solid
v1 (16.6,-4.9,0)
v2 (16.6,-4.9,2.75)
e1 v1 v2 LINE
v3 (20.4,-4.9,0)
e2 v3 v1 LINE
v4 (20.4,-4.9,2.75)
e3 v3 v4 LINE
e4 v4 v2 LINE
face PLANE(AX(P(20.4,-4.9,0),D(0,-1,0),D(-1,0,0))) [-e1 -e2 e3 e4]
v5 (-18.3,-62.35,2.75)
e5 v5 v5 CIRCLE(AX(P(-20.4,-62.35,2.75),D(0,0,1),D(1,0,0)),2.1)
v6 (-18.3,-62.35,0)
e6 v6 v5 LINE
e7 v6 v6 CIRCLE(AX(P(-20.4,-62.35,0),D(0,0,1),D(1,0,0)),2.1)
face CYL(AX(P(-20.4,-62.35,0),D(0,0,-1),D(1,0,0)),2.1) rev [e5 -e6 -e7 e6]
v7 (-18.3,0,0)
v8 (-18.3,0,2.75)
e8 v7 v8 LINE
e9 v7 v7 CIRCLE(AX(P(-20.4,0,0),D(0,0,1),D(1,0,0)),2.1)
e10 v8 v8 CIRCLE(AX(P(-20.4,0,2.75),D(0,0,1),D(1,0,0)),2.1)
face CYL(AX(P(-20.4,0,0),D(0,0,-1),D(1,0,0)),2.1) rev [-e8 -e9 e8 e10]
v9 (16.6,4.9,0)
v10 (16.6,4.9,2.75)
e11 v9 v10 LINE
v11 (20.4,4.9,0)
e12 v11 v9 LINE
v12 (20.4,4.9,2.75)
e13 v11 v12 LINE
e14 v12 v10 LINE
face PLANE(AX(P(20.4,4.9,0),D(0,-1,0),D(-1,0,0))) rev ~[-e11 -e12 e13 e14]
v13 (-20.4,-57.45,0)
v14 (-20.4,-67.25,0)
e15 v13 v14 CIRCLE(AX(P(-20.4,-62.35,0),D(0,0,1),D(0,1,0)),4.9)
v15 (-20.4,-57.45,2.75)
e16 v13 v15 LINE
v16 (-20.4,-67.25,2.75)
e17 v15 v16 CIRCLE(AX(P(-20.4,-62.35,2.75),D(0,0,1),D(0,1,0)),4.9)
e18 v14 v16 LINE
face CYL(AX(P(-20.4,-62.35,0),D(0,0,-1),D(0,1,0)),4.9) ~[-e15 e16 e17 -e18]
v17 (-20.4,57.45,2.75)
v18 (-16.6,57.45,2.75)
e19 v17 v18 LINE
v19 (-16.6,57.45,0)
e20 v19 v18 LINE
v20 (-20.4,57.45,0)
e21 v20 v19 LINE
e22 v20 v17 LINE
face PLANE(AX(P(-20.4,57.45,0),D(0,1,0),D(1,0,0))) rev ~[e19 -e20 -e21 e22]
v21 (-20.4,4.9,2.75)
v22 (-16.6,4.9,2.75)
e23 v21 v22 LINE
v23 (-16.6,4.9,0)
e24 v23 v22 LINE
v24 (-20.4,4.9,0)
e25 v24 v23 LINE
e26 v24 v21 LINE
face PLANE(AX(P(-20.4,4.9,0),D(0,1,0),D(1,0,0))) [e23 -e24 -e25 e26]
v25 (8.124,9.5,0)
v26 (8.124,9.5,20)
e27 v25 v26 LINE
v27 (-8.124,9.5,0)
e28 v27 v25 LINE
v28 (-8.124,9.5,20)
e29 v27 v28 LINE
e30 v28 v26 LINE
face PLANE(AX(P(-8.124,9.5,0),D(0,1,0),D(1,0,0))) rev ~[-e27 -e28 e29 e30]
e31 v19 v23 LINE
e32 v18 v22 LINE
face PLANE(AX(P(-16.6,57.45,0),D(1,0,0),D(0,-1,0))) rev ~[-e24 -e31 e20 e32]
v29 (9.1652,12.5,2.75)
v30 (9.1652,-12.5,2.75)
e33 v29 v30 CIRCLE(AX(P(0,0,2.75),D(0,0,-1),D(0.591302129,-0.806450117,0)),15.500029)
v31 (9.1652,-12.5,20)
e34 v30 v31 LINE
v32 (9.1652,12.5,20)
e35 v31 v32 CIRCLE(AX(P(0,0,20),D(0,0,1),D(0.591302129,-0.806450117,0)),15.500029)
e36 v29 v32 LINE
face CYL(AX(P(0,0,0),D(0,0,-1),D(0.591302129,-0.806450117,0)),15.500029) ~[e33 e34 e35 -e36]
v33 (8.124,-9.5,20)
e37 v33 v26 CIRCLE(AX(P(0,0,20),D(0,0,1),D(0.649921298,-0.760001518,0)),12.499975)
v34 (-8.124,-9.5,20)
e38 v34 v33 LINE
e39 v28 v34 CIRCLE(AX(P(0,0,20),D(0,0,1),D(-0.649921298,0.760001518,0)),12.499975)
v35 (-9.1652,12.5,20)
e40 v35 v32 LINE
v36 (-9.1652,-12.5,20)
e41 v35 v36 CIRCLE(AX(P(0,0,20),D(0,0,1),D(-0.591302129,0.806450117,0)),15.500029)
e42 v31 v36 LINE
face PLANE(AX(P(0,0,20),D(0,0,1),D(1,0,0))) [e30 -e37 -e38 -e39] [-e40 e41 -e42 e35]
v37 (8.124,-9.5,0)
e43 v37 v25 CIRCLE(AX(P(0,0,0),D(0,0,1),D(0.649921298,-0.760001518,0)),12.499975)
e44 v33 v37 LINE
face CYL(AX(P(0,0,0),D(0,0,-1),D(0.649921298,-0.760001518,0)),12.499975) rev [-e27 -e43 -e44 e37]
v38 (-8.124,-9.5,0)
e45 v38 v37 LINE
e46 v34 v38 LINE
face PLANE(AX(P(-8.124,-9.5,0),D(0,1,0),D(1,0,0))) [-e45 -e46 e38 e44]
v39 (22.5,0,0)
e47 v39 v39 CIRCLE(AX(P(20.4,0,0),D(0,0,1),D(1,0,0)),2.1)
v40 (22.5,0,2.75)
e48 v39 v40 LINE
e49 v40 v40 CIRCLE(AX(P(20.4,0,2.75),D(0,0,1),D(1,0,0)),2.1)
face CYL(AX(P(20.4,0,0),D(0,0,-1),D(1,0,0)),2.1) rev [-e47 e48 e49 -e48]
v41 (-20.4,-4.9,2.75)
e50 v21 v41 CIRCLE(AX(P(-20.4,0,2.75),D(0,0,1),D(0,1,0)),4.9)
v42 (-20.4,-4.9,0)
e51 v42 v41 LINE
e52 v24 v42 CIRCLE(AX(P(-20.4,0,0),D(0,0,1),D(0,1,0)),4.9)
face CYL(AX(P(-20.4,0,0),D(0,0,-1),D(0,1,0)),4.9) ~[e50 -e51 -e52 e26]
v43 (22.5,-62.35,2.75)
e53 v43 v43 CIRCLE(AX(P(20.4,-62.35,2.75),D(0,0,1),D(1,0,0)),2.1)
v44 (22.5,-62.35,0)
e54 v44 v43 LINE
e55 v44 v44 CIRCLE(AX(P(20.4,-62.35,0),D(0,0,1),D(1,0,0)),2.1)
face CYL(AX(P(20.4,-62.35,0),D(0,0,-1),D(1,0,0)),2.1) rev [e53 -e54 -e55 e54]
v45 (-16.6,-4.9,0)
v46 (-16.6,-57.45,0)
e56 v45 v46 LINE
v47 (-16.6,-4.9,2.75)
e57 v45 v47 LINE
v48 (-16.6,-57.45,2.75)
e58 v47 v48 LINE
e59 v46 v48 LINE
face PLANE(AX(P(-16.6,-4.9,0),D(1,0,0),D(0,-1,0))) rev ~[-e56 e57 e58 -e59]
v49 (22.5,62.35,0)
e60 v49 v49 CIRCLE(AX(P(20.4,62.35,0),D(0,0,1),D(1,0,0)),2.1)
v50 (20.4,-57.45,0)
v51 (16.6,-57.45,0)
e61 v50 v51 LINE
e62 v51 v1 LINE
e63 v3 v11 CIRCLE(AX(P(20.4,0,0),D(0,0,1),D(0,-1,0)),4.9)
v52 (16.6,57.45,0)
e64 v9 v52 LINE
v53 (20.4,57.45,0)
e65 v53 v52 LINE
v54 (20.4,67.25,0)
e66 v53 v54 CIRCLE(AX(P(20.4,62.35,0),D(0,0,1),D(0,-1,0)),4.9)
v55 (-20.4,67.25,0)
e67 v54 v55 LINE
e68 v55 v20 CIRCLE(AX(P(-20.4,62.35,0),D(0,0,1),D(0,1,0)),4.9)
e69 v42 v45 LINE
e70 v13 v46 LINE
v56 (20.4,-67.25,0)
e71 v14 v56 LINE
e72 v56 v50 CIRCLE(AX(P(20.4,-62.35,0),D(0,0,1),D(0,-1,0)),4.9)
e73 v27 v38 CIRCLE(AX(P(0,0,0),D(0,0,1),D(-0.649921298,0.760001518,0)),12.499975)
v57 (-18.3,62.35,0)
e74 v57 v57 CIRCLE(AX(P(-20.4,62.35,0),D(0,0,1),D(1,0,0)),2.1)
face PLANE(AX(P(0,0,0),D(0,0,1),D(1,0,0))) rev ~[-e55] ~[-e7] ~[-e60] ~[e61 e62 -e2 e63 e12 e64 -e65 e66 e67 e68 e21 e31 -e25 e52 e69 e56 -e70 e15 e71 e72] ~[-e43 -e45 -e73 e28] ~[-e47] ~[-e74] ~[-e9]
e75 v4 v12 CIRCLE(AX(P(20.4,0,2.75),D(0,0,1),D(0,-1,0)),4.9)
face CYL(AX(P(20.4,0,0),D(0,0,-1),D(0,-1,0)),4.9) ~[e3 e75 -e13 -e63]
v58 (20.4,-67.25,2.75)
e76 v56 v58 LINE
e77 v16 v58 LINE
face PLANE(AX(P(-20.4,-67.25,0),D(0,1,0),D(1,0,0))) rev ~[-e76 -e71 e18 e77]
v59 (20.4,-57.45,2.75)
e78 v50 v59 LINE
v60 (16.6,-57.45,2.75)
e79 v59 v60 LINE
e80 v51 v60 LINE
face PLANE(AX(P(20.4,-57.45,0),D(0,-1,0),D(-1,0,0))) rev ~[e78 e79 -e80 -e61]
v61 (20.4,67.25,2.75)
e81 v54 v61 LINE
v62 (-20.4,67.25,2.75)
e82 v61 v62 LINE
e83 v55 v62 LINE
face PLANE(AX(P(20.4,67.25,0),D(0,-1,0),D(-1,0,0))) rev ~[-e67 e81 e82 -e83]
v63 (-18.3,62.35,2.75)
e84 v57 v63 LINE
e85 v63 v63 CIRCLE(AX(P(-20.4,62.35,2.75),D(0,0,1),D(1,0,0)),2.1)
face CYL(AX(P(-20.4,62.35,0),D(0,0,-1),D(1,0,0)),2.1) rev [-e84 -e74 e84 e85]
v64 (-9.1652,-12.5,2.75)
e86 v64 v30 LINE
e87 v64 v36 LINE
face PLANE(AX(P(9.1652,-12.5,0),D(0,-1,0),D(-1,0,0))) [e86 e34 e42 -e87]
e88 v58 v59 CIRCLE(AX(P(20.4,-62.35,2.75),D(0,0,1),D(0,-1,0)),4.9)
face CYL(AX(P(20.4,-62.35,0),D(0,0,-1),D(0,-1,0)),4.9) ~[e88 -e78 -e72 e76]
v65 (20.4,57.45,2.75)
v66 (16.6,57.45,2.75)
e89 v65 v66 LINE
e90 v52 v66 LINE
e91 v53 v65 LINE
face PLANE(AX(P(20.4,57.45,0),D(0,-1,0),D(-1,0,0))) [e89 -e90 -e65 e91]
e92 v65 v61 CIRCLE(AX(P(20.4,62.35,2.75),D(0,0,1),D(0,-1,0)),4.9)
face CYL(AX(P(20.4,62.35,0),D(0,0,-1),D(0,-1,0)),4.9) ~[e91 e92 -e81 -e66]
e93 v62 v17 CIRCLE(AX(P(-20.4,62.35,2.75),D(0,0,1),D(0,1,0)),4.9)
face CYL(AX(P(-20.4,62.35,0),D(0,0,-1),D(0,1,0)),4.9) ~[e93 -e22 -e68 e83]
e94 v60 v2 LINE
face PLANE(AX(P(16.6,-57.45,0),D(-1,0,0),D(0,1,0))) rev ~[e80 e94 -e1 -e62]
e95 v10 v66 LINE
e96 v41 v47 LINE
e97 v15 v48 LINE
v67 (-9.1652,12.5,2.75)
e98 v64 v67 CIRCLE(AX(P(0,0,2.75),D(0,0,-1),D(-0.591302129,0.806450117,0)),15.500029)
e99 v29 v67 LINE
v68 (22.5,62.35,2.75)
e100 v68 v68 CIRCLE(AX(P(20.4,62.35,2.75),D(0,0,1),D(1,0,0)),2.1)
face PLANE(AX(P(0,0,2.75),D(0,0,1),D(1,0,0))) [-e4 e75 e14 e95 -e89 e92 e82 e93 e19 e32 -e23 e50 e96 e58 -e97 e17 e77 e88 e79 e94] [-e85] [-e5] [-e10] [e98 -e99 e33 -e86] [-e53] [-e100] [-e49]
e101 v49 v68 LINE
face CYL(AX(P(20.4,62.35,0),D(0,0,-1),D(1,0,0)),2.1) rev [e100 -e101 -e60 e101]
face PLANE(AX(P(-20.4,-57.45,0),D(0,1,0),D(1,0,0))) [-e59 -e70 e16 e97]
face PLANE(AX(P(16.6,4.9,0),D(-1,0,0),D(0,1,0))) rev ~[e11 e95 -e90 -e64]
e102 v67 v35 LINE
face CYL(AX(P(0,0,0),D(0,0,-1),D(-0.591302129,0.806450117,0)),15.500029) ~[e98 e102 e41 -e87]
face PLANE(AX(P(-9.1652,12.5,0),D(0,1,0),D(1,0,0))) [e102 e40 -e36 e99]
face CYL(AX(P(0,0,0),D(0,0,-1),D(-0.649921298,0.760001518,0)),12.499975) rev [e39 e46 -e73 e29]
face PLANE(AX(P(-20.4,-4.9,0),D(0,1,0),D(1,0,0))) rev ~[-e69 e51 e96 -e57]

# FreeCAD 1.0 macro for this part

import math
import FreeCAD as App
import Part
import Sketcher
from FreeCAD import Vector
Q = App.Units.Quantity

doc = App.newDocument("Part")
params = doc.addObject("Spreadsheet::Sheet", "Params")
for row, (alias, value) in enumerate([
    ("sketch1_diameter", "4.2 mm"),
    ("sketch1_radius", "4.9 mm"),
    ("sketch1_radius2", "12.5 mm"),
    ("sketch1_width", "3.8 mm"),
    ("sketch1_height", "52.55 mm"),
    ("pad1_length", "2.75 mm"),
    ("sketch2_radius", "12.5 mm"),
    ("sketch2_radius2", "15.5 mm"),
    ("pad2_length", "20 mm"),
], start=1):
    params.set(f"A{row}", alias)
    params.set(f"B{row}", "=" + value)
    params.setAlias(f"B{row}", alias)

body = doc.addObject("PartDesign::Body", "Body")

# Sketch on XY plane
sketch1 = body.newObject("Sketcher::SketchObject", "Sketch")
sketch1.AttachmentSupport = (doc.getObject("XY_Plane"), [""])
sketch1.MapMode = "FlatFace"
sketch1.addGeometry([
    Part.ArcOfCircle(Part.Circle(Vector(-20.4, -62.4, 0), Vector(0, 0, 1), 4.9), math.radians(90), math.radians(270)),  # 0
    Part.LineSegment(Vector(-20.4, -67.2, 0), Vector(20.4, -67.2, 0)),  # 1
    Part.ArcOfCircle(Part.Circle(Vector(20.4, -62.4, 0), Vector(0, 0, 1), 4.9), math.radians(-90), math.radians(90)),  # 2
    Part.LineSegment(Vector(20.4, -57.5, 0), Vector(16.6, -57.5, 0)),  # 3
    Part.LineSegment(Vector(16.6, -57.5, 0), Vector(16.6, -4.9, 0)),  # 4
    Part.LineSegment(Vector(16.6, -4.9, 0), Vector(20.4, -4.9, 0)),  # 5
    Part.ArcOfCircle(Part.Circle(Vector(20.4, 0, 0), Vector(0, 0, 1), 4.9), math.radians(-90), math.radians(90)),  # 6
    Part.LineSegment(Vector(20.4, 4.9, 0), Vector(16.6, 4.9, 0)),  # 7
    Part.LineSegment(Vector(16.6, 4.9, 0), Vector(16.6, 57.5, 0)),  # 8
    Part.LineSegment(Vector(16.6, 57.5, 0), Vector(20.4, 57.5, 0)),  # 9
    Part.ArcOfCircle(Part.Circle(Vector(20.4, 62.4, 0), Vector(0, 0, 1), 4.9), math.radians(-90), math.radians(90)),  # 10
    Part.LineSegment(Vector(20.4, 67.2, 0), Vector(-20.4, 67.2, 0)),  # 11
    Part.ArcOfCircle(Part.Circle(Vector(-20.4, 62.4, 0), Vector(0, 0, 1), 4.9), math.radians(90), math.radians(270)),  # 12
    Part.LineSegment(Vector(-20.4, 57.5, 0), Vector(-16.6, 57.5, 0)),  # 13
    Part.LineSegment(Vector(-16.6, 57.5, 0), Vector(-16.6, 4.9, 0)),  # 14
    Part.LineSegment(Vector(-16.6, 4.9, 0), Vector(-20.4, 4.9, 0)),  # 15
    Part.ArcOfCircle(Part.Circle(Vector(-20.4, 0, 0), Vector(0, 0, 1), 4.9), math.radians(90), math.radians(270)),  # 16
    Part.LineSegment(Vector(-20.4, -4.9, 0), Vector(-16.6, -4.9, 0)),  # 17
    Part.LineSegment(Vector(-16.6, -4.9, 0), Vector(-16.6, -57.5, 0)),  # 18
    Part.LineSegment(Vector(-16.6, -57.5, 0), Vector(-20.4, -57.5, 0)),  # 19
    Part.Circle(Vector(-20.4, -62.4, 0), Vector(0, 0, 1), 2.1),  # 20
    Part.Circle(Vector(20.4, -62.4, 0), Vector(0, 0, 1), 2.1),  # 21
    Part.Circle(Vector(-20.4, 0, 0), Vector(0, 0, 1), 2.1),  # 22
    Part.Circle(Vector(-20.4, 62.4, 0), Vector(0, 0, 1), 2.1),  # 23
    Part.Circle(Vector(20.4, 0, 0), Vector(0, 0, 1), 2.1),  # 24
    Part.Circle(Vector(20.4, 62.4, 0), Vector(0, 0, 1), 2.1),  # 25
    Part.ArcOfCircle(Part.Circle(Vector(0, 0, 0), Vector(0, 0, 1), 12.5), math.radians(131), math.radians(229)),  # 26
    Part.LineSegment(Vector(-8.1, 9.5, 0), Vector(8.1, 9.5, 0)),  # 27
    Part.ArcOfCircle(Part.Circle(Vector(0, 0, 0), Vector(0, 0, 1), 12.5), math.radians(-49), math.radians(49)),  # 28
    Part.LineSegment(Vector(8.1, -9.5, 0), Vector(-8.1, -9.5, 0)),  # 29
], False)
sketch1.addConstraint([
    Sketcher.Constraint("Tangent", 0, 2, 1, 1),
    Sketcher.Constraint("Tangent", 1, 2, 2, 1),
    Sketcher.Constraint("Tangent", 2, 2, 3, 1),
    Sketcher.Constraint("Coincident", 3, 2, 4, 1),
    Sketcher.Constraint("Coincident", 4, 2, 5, 1),
    Sketcher.Constraint("Tangent", 5, 2, 6, 1),
    Sketcher.Constraint("Tangent", 6, 2, 7, 1),
    Sketcher.Constraint("Coincident", 7, 2, 8, 1),
    Sketcher.Constraint("Coincident", 8, 2, 9, 1),
    Sketcher.Constraint("Tangent", 9, 2, 10, 1),
    Sketcher.Constraint("Tangent", 10, 2, 11, 1),
    Sketcher.Constraint("Tangent", 11, 2, 12, 1),
    Sketcher.Constraint("Tangent", 12, 2, 13, 1),
    Sketcher.Constraint("Coincident", 13, 2, 14, 1),
    Sketcher.Constraint("Coincident", 14, 2, 15, 1),
    Sketcher.Constraint("Tangent", 15, 2, 16, 1),
    Sketcher.Constraint("Tangent", 16, 2, 17, 1),
    Sketcher.Constraint("Coincident", 17, 2, 18, 1),
    Sketcher.Constraint("Coincident", 18, 2, 19, 1),
    Sketcher.Constraint("Tangent", 19, 2, 0, 1),
    Sketcher.Constraint("Coincident", 26, 1, 27, 1),
    Sketcher.Constraint("Coincident", 27, 2, 28, 2),
    Sketcher.Constraint("Coincident", 28, 1, 29, 1),
    Sketcher.Constraint("Coincident", 29, 2, 26, 2),
    Sketcher.Constraint("Horizontal", 1),
    Sketcher.Constraint("Horizontal", 3),
    Sketcher.Constraint("Vertical", 4),
    Sketcher.Constraint("Horizontal", 5),
    Sketcher.Constraint("Horizontal", 7),
    Sketcher.Constraint("Vertical", 8),
    Sketcher.Constraint("Horizontal", 9),
    Sketcher.Constraint("Horizontal", 11),
    Sketcher.Constraint("Horizontal", 13),
    Sketcher.Constraint("Vertical", 14),
    Sketcher.Constraint("Horizontal", 15),
    Sketcher.Constraint("Horizontal", 17),
    Sketcher.Constraint("Vertical", 18),
    Sketcher.Constraint("Horizontal", 19),
    Sketcher.Constraint("Horizontal", 27),
    Sketcher.Constraint("Horizontal", 29),
    Sketcher.Constraint("Coincident", 26, 3, -1, 1),
    Sketcher.Constraint("Coincident", 28, 3, -1, 1),
    Sketcher.Constraint("Coincident", 20, 3, 0, 3),
    Sketcher.Constraint("Coincident", 21, 3, 2, 3),
    Sketcher.Constraint("Coincident", 22, 3, 16, 3),
    Sketcher.Constraint("Coincident", 23, 3, 12, 3),
    Sketcher.Constraint("Coincident", 24, 3, 6, 3),
    Sketcher.Constraint("Coincident", 25, 3, 10, 3),
    Sketcher.Constraint("Equal", 0, 2),
    Sketcher.Constraint("Equal", 2, 6),
    Sketcher.Constraint("Equal", 6, 10),
    Sketcher.Constraint("Equal", 10, 12),
    Sketcher.Constraint("Equal", 12, 16),
    Sketcher.Constraint("Equal", 20, 21),
    Sketcher.Constraint("Equal", 21, 22),
    Sketcher.Constraint("Equal", 22, 23),
    Sketcher.Constraint("Equal", 23, 24),
    Sketcher.Constraint("Equal", 24, 25),
    Sketcher.Constraint("Equal", 26, 28),
    Sketcher.Constraint("Symmetric", 0, 3, 10, 3, -1, 1),
    Sketcher.Constraint("Symmetric", 6, 3, 16, 3, -1, 1),
    Sketcher.Constraint("Symmetric", 7, 2, 14, 2, -2),
    Sketcher.Constraint("Vertical", 2, 3, 6, 3),
    Sketcher.Constraint("Vertical", 6, 3, 10, 3),
    Sketcher.Constraint("Vertical", 0, 3, 12, 3),
    Sketcher.Constraint("Vertical", 4, 2, 7, 2),
    Sketcher.Constraint("Vertical", 14, 2, 17, 2),
    Sketcher.Constraint("Vertical", 27, 2, 28, 1),
    Sketcher.Constraint("Diameter", 20, Q("4.2 mm")),
    Sketcher.Constraint("Radius", 0, Q("4.9 mm")),
    Sketcher.Constraint("Radius", 26, Q("12.5 mm")),
    Sketcher.Constraint("DistanceX", 3, 2, 3, 1, Q("3.8 mm")),
    Sketcher.Constraint("DistanceX", 13, 2, 8, 2, Q("33.2 mm")),
    Sketcher.Constraint("DistanceY", 4, 1, 4, 2, Q("52.55 mm")),
    Sketcher.Constraint("DistanceY", -1, 1, 26, 1, Q("9.5 mm")),
])
sketch1.setExpression("Constraints[68]", "Params.sketch1_diameter")
sketch1.setExpression("Constraints[69]", "Params.sketch1_radius")
sketch1.setExpression("Constraints[70]", "Params.sketch1_radius2")
sketch1.setExpression("Constraints[71]", "Params.sketch1_width")
sketch1.setExpression("Constraints[73]", "Params.sketch1_height")
pad1 = body.newObject("PartDesign::Pad", "Pad")
pad1.Profile = sketch1
pad1.setExpression("Length", "Params.pad1_length")

# Sketch on XY plane
sketch2 = body.newObject("Sketcher::SketchObject", "Sketch001")
sketch2.AttachmentSupport = (doc.getObject("XY_Plane"), [""])
sketch2.MapMode = "FlatFace"
sketch2.addGeometry([
    Part.LineSegment(Vector(-9, -12, 0), Vector(9, -12, 0)),  # 0
    Part.ArcOfCircle(Part.Circle(Vector(0, 0, 0), Vector(0, 0, 1), 16), math.radians(-54), math.radians(54)),  # 1
    Part.LineSegment(Vector(9, 12, 0), Vector(-9, 12, 0)),  # 2
    Part.ArcOfCircle(Part.Circle(Vector(0, 0, 0), Vector(0, 0, 1), 16), math.radians(126), math.radians(234)),  # 3
    Part.ArcOfCircle(Part.Circle(Vector(0, 0, 0), Vector(0, 0, 1), 12), math.radians(131), math.radians(229)),  # 4
    Part.LineSegment(Vector(-8, 10, 0), Vector(8, 10, 0)),  # 5
    Part.ArcOfCircle(Part.Circle(Vector(0, 0, 0), Vector(0, 0, 1), 12), math.radians(-49), math.radians(49)),  # 6
    Part.LineSegment(Vector(8, -10, 0), Vector(-8, -10, 0)),  # 7
], False)
sketch2.addConstraint([
    Sketcher.Constraint("Coincident", 0, 2, 1, 1),
    Sketcher.Constraint("Coincident", 1, 2, 2, 1),
    Sketcher.Constraint("Coincident", 2, 2, 3, 1),
    Sketcher.Constraint("Coincident", 3, 2, 0, 1),
    Sketcher.Constraint("Coincident", 4, 1, 5, 1),
    Sketcher.Constraint("Coincident", 5, 2, 6, 2),
    Sketcher.Constraint("Coincident", 6, 1, 7, 1),
    Sketcher.Constraint("Coincident", 7, 2, 4, 2),
    Sketcher.Constraint("Horizontal", 0),
    Sketcher.Constraint("Horizontal", 2),
    Sketcher.Constraint("Horizontal", 5),
    Sketcher.Constraint("Horizontal", 7),
    Sketcher.Constraint("Coincident", 1, 3, -1, 1),
    Sketcher.Constraint("Coincident", 3, 3, -1, 1),
    Sketcher.Constraint("Coincident", 4, 3, -1, 1),
    Sketcher.Constraint("Coincident", 6, 3, -1, 1),
    Sketcher.Constraint("Equal", 1, 3),
    Sketcher.Constraint("Equal", 4, 6),
    Sketcher.Constraint("Vertical", 0, 2, 1, 2),
    Sketcher.Constraint("Vertical", 5, 2, 6, 1),
    Sketcher.Constraint("Radius", 4, Q("12.5 mm")),
    Sketcher.Constraint("DistanceY", 4, 1, 2, 2, Q("3 mm")),
    Sketcher.Constraint("DistanceY", 0, 2, -1, 1, Q("12.5 mm")),
    Sketcher.Constraint("Radius", 1, Q("15.5 mm")),
])
sketch2.setExpression("Constraints[20]", "Params.sketch2_radius")
sketch2.setExpression("Constraints[23]", "Params.sketch2_radius2")
pad2 = body.newObject("PartDesign::Pad", "Pad001")
pad2.Profile = sketch2
pad2.setExpression("Length", "Params.pad2_length")

doc.recompute()
